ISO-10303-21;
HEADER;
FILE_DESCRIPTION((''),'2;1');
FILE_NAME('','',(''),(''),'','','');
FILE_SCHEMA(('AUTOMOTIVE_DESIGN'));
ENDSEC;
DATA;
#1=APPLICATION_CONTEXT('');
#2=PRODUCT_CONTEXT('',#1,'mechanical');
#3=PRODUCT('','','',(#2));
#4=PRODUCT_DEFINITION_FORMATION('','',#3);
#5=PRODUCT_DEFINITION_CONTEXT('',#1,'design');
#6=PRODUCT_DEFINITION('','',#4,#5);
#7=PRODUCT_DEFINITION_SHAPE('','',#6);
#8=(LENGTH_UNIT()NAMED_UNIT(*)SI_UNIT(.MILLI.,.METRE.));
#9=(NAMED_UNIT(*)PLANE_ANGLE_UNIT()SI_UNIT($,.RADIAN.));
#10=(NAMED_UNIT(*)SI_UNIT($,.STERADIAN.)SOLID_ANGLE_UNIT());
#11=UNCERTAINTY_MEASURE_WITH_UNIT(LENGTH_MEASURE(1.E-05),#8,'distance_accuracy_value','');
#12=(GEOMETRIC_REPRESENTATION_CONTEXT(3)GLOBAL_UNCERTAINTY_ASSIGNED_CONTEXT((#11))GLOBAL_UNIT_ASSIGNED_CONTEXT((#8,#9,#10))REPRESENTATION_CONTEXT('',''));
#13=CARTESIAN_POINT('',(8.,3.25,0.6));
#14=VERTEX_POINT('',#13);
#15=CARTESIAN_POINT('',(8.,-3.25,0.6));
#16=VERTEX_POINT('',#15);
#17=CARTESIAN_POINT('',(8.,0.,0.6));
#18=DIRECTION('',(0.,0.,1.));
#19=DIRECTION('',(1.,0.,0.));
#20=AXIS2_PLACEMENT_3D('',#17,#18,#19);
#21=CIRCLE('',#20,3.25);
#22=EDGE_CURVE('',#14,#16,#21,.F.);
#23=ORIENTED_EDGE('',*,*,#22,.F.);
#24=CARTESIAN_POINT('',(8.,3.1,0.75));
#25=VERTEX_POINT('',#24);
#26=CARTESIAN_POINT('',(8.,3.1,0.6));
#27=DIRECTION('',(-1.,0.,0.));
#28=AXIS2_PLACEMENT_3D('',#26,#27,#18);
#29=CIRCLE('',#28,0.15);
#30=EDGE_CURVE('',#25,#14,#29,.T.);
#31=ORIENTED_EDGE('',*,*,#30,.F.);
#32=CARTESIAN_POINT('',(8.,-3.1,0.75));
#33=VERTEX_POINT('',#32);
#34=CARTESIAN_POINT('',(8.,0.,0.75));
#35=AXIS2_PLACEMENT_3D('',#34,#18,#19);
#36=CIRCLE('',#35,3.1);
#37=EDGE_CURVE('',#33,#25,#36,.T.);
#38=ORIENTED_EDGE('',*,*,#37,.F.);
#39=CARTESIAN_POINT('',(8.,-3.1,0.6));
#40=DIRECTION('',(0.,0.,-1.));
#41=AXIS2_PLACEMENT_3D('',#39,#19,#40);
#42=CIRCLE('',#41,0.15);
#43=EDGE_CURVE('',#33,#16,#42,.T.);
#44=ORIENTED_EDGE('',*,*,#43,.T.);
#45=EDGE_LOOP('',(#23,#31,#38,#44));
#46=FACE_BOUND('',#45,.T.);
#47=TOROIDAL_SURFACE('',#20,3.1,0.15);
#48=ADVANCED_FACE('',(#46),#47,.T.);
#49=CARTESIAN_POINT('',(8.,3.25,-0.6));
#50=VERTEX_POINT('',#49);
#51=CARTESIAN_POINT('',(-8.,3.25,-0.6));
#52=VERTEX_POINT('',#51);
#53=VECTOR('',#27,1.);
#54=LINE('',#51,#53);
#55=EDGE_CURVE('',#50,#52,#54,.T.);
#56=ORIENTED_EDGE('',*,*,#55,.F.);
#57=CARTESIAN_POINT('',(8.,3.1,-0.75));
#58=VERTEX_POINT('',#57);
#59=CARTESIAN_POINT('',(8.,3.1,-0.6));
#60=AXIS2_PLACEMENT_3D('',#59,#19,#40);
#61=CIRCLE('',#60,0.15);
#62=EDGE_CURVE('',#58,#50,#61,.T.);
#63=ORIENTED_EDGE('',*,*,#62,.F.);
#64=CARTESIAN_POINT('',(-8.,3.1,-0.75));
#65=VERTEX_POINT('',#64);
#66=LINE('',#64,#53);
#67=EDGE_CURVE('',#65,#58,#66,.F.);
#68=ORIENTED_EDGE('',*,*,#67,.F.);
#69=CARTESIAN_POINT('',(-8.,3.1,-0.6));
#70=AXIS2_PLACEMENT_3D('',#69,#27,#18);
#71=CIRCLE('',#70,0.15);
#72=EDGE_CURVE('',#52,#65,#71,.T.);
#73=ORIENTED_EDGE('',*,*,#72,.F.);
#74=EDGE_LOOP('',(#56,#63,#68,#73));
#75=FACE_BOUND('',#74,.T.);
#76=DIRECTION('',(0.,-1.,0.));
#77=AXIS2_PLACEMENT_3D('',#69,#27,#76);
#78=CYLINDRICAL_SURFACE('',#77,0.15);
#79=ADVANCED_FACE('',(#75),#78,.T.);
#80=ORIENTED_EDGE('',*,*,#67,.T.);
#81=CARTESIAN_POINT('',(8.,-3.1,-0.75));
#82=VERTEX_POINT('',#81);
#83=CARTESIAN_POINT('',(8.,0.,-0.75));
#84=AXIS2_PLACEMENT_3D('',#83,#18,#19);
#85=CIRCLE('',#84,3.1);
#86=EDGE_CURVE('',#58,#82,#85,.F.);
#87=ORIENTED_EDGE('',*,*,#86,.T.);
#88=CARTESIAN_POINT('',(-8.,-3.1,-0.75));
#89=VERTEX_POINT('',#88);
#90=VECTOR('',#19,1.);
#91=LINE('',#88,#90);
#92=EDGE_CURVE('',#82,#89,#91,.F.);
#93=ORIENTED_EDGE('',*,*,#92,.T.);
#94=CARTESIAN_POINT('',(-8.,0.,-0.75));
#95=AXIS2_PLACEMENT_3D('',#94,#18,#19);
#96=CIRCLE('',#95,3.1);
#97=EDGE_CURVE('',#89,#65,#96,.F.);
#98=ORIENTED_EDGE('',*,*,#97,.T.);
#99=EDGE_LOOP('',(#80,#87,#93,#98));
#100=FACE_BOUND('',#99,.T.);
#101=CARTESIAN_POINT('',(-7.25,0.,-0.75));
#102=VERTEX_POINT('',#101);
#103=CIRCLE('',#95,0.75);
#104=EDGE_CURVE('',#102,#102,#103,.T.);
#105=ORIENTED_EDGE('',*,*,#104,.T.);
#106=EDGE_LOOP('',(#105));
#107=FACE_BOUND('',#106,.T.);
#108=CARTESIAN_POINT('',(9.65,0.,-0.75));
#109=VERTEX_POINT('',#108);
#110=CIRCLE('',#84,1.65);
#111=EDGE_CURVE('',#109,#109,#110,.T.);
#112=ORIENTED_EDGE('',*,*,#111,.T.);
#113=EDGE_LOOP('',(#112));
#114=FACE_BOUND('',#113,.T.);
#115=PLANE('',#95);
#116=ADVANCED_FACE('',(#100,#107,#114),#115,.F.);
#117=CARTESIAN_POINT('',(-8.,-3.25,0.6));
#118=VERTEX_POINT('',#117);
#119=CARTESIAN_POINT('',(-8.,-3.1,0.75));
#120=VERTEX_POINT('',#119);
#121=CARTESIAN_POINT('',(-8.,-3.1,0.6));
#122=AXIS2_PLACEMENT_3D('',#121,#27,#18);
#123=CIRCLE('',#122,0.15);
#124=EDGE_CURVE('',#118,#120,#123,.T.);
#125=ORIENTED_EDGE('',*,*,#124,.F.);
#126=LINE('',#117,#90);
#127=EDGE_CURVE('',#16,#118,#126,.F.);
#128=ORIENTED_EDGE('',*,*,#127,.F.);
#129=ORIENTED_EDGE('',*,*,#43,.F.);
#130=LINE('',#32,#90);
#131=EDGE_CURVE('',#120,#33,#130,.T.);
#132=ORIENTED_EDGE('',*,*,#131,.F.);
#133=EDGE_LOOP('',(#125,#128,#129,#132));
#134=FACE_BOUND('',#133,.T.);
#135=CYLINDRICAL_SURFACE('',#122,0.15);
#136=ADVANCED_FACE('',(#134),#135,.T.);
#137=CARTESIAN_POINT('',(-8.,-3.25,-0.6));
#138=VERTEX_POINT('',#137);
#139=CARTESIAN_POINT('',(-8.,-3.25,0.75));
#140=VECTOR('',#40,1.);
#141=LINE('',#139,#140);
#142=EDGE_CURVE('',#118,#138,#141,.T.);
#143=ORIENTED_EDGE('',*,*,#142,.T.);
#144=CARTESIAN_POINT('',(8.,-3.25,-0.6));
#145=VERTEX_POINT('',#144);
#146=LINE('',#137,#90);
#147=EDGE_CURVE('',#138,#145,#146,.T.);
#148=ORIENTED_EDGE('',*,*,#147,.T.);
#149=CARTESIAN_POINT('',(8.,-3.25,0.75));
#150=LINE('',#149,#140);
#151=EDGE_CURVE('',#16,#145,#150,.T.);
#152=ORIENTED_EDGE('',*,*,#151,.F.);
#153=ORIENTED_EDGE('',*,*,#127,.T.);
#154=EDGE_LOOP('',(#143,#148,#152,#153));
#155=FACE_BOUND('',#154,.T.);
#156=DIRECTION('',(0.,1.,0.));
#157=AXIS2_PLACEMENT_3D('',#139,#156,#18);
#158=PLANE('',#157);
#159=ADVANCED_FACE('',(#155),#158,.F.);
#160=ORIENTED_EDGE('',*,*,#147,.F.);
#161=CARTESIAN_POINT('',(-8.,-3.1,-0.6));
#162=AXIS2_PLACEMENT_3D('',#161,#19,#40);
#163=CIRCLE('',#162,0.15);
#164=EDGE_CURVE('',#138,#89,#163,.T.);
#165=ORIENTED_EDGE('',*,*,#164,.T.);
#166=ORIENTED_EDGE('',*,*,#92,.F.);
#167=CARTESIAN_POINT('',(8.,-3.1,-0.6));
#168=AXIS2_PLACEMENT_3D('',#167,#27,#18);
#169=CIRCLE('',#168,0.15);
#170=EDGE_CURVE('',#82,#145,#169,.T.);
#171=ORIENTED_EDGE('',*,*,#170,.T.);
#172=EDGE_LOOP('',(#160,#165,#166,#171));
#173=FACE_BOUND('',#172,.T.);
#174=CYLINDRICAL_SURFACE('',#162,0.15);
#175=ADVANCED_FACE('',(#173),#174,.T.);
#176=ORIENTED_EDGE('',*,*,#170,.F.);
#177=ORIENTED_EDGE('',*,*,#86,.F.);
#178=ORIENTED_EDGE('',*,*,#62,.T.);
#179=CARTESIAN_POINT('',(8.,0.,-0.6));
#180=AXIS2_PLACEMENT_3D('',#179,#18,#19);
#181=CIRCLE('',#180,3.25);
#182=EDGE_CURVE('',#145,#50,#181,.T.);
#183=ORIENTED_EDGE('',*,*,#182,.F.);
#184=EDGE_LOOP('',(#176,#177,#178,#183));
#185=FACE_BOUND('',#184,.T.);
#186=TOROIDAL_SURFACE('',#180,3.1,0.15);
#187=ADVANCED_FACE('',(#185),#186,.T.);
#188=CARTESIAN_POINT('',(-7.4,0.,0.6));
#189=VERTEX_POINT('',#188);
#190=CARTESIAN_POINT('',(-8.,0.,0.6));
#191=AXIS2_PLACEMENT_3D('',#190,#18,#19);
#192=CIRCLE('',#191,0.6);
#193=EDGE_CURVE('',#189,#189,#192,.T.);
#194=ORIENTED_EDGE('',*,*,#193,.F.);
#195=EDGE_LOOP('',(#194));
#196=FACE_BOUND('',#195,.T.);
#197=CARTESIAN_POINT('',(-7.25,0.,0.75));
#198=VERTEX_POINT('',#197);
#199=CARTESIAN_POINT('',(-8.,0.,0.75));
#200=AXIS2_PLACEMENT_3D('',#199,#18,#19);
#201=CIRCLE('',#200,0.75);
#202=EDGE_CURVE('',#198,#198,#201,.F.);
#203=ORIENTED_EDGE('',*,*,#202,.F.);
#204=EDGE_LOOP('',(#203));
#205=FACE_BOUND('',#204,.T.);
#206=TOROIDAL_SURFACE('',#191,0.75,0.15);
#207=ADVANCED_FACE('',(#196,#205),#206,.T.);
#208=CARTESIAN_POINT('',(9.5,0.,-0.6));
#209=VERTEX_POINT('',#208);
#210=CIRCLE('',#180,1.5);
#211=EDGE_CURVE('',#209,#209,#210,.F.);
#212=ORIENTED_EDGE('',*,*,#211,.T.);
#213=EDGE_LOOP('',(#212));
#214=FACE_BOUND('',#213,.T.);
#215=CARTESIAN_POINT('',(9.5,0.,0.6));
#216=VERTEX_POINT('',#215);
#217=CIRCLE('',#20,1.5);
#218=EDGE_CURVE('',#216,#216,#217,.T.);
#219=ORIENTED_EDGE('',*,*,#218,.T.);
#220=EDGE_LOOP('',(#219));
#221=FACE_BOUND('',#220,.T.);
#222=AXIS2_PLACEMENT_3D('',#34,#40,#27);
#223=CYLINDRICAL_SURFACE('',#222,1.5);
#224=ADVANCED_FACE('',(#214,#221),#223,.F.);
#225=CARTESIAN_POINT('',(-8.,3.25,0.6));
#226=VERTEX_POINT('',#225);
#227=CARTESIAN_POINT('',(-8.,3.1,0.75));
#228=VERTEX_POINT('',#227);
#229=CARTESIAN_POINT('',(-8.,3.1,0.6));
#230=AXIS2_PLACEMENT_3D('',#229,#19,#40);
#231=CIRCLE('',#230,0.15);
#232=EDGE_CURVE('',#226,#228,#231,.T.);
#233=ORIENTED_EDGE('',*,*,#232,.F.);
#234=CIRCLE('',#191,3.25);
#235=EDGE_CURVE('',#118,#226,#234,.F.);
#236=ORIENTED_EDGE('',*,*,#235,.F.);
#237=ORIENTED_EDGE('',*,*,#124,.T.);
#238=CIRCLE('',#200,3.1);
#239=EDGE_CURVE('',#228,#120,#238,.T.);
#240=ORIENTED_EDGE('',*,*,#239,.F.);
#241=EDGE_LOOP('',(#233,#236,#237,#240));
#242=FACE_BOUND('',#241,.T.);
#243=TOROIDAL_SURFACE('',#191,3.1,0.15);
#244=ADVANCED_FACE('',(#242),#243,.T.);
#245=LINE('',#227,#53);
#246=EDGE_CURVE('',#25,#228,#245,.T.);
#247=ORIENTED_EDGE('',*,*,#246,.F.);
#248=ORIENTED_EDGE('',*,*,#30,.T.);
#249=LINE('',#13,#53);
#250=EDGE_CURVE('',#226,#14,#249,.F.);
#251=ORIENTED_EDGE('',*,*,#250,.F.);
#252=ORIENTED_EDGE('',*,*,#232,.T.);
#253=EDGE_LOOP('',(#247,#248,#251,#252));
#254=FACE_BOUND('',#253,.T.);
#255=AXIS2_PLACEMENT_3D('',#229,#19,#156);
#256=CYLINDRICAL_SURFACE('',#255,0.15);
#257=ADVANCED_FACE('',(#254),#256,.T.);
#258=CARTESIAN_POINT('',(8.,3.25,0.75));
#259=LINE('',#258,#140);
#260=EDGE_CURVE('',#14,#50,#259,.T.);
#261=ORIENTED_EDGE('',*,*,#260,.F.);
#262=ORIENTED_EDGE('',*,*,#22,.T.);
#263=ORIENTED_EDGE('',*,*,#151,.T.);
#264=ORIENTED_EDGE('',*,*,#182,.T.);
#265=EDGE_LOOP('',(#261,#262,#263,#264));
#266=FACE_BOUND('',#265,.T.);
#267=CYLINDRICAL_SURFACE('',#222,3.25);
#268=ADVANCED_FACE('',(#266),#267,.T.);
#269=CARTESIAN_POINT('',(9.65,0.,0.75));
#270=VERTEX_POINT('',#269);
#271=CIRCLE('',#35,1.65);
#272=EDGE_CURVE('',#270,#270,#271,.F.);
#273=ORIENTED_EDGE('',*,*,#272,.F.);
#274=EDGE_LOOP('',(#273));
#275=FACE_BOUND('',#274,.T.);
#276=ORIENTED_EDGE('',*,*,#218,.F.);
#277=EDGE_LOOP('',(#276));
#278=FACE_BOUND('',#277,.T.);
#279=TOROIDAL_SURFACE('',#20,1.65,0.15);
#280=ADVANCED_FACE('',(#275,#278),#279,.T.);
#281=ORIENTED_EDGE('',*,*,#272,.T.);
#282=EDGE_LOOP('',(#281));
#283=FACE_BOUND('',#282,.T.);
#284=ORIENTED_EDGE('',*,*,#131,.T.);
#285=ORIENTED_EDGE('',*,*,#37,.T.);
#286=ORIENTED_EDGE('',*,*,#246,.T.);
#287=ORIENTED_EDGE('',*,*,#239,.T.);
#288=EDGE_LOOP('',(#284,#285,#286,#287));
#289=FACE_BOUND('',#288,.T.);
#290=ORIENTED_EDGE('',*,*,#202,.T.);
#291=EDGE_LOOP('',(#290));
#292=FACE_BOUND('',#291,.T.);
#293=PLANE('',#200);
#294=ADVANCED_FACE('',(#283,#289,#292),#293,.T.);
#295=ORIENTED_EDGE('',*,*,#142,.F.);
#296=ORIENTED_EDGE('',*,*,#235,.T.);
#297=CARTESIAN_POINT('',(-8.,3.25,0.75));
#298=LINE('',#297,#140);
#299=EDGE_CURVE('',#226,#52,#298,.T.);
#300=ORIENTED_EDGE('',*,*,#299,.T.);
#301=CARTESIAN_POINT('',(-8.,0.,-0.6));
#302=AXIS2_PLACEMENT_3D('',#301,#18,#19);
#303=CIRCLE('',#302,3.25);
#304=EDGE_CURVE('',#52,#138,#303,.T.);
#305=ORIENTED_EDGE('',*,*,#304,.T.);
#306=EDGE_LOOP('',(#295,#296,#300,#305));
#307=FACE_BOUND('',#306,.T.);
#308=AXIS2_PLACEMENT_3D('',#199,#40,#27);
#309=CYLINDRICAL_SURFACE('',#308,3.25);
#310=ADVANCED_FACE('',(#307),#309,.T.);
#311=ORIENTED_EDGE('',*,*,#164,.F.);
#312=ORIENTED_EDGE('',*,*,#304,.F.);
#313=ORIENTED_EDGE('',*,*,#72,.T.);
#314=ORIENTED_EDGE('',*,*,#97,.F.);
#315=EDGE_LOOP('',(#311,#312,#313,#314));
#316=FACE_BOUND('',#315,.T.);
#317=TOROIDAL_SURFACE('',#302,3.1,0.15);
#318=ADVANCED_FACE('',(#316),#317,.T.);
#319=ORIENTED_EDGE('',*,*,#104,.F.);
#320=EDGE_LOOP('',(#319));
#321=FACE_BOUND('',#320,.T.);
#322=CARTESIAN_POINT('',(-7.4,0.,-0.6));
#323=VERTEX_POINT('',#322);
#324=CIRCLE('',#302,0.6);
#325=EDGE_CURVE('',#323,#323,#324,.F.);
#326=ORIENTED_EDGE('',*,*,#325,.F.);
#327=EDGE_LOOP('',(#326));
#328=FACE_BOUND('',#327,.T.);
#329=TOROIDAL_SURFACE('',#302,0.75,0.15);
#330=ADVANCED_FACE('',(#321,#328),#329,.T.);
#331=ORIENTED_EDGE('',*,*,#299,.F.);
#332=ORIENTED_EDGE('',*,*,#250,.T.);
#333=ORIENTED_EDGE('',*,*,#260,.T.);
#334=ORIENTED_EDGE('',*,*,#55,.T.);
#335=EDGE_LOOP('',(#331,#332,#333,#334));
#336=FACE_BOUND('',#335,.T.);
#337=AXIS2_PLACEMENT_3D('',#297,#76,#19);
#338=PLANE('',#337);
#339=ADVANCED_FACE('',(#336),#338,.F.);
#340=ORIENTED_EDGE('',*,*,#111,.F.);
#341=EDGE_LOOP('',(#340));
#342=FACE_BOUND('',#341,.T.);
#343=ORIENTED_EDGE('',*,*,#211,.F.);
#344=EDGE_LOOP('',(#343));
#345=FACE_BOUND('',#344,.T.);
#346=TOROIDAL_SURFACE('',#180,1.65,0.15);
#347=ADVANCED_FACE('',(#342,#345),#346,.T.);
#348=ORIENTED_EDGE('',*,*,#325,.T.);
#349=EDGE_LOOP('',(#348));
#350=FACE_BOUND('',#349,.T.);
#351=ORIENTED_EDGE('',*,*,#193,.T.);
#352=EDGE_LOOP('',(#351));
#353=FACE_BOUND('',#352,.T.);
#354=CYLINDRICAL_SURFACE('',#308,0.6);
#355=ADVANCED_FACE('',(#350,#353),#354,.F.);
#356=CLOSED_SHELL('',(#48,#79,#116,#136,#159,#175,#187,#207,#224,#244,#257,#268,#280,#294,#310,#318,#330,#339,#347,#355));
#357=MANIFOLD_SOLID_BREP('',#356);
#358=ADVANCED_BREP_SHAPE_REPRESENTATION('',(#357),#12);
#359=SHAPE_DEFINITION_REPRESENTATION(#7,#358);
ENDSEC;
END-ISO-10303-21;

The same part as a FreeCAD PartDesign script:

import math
import FreeCAD as App
import Part
import Sketcher
from FreeCAD import Vector


def edges_at(feature, points):
    """Names of the edges that pass closest to the given points."""
    edges = feature.Shape.Edges
    near = lambda p: min(range(len(edges)), key=lambda i: edges[i].distToShape(Part.Vertex(*p))[0])
    return sorted({f"Edge{near(p) + 1}" for p in points})

doc = App.newDocument("Part")
body = doc.addObject("PartDesign::Body", "Body")

# Sketch on XY plane
sketch1 = body.newObject("Sketcher::SketchObject", "Sketch")
sketch1.AttachmentSupport = (doc.getObject("XY_Plane"), [""])
sketch1.MapMode = "FlatFace"
sketch1.addGeometry([
    Part.LineSegment(Vector(8, 3.2, 0), Vector(-8, 3.2, 0)),  # 0
    Part.ArcOfCircle(Part.Circle(Vector(-8, 0, 0), Vector(0, 0, 1), 3.2), math.radians(90), math.radians(270)),  # 1
    Part.LineSegment(Vector(-8, -3.2, 0), Vector(8, -3.2, 0)),  # 2
    Part.ArcOfCircle(Part.Circle(Vector(8, 0, 0), Vector(0, 0, 1), 3.2), math.radians(-90), math.radians(90)),  # 3
    Part.Circle(Vector(8, 0, 0), Vector(0, 0, 1), 1.5),  # 4
    Part.Circle(Vector(-8, 0, 0), Vector(0, 0, 1), 0.6),  # 5
], False)
sketch1.addConstraint([
    Sketcher.Constraint("Tangent", 0, 2, 1, 1),
    Sketcher.Constraint("Tangent", 1, 2, 2, 1),
    Sketcher.Constraint("Tangent", 2, 2, 3, 1),
    Sketcher.Constraint("Tangent", 3, 2, 0, 1),
    Sketcher.Constraint("Horizontal", 0),
    Sketcher.Constraint("Horizontal", 2),
    Sketcher.Constraint("Coincident", 4, 3, 3, 3),
    Sketcher.Constraint("Coincident", 5, 3, 1, 3),
    Sketcher.Constraint("Symmetric", 1, 3, 3, 3, -1, 1),
    Sketcher.Constraint("Diameter", 4, 3.0),
    Sketcher.Constraint("Diameter", 5, 1.2),
    Sketcher.Constraint("DistanceX", 0, 2, 0, 1, 16.0),
    Sketcher.Constraint("Radius", 1, 3.25),
])
pad1 = body.newObject("PartDesign::Pad", "Pad")
pad1.Profile = sketch1
pad1.Length = 1.5
pad1.Midplane = True
doc.recompute()

fillet = body.newObject("PartDesign::Fillet", "Fillet")
fillet.Base = (pad1, edges_at(pad1, [
    (11.25, 0, 0.75),
    (-8.6, 0, -0.75),
    (-8.6, 0, 0.75),
    (0, 3.25, 0.75),
    (6.5, 0, -0.75),
    (6.5, 0, 0.75),
    (-11.25, 0, 0.75),
    (0, 3.25, -0.75),
    (11.25, 0, -0.75),
    (0, -3.25, -0.75),
    (-11.25, 0, -0.75),
    (0, -3.25, 0.75),
]))
fillet.Radius = 0.15

doc.recompute()
